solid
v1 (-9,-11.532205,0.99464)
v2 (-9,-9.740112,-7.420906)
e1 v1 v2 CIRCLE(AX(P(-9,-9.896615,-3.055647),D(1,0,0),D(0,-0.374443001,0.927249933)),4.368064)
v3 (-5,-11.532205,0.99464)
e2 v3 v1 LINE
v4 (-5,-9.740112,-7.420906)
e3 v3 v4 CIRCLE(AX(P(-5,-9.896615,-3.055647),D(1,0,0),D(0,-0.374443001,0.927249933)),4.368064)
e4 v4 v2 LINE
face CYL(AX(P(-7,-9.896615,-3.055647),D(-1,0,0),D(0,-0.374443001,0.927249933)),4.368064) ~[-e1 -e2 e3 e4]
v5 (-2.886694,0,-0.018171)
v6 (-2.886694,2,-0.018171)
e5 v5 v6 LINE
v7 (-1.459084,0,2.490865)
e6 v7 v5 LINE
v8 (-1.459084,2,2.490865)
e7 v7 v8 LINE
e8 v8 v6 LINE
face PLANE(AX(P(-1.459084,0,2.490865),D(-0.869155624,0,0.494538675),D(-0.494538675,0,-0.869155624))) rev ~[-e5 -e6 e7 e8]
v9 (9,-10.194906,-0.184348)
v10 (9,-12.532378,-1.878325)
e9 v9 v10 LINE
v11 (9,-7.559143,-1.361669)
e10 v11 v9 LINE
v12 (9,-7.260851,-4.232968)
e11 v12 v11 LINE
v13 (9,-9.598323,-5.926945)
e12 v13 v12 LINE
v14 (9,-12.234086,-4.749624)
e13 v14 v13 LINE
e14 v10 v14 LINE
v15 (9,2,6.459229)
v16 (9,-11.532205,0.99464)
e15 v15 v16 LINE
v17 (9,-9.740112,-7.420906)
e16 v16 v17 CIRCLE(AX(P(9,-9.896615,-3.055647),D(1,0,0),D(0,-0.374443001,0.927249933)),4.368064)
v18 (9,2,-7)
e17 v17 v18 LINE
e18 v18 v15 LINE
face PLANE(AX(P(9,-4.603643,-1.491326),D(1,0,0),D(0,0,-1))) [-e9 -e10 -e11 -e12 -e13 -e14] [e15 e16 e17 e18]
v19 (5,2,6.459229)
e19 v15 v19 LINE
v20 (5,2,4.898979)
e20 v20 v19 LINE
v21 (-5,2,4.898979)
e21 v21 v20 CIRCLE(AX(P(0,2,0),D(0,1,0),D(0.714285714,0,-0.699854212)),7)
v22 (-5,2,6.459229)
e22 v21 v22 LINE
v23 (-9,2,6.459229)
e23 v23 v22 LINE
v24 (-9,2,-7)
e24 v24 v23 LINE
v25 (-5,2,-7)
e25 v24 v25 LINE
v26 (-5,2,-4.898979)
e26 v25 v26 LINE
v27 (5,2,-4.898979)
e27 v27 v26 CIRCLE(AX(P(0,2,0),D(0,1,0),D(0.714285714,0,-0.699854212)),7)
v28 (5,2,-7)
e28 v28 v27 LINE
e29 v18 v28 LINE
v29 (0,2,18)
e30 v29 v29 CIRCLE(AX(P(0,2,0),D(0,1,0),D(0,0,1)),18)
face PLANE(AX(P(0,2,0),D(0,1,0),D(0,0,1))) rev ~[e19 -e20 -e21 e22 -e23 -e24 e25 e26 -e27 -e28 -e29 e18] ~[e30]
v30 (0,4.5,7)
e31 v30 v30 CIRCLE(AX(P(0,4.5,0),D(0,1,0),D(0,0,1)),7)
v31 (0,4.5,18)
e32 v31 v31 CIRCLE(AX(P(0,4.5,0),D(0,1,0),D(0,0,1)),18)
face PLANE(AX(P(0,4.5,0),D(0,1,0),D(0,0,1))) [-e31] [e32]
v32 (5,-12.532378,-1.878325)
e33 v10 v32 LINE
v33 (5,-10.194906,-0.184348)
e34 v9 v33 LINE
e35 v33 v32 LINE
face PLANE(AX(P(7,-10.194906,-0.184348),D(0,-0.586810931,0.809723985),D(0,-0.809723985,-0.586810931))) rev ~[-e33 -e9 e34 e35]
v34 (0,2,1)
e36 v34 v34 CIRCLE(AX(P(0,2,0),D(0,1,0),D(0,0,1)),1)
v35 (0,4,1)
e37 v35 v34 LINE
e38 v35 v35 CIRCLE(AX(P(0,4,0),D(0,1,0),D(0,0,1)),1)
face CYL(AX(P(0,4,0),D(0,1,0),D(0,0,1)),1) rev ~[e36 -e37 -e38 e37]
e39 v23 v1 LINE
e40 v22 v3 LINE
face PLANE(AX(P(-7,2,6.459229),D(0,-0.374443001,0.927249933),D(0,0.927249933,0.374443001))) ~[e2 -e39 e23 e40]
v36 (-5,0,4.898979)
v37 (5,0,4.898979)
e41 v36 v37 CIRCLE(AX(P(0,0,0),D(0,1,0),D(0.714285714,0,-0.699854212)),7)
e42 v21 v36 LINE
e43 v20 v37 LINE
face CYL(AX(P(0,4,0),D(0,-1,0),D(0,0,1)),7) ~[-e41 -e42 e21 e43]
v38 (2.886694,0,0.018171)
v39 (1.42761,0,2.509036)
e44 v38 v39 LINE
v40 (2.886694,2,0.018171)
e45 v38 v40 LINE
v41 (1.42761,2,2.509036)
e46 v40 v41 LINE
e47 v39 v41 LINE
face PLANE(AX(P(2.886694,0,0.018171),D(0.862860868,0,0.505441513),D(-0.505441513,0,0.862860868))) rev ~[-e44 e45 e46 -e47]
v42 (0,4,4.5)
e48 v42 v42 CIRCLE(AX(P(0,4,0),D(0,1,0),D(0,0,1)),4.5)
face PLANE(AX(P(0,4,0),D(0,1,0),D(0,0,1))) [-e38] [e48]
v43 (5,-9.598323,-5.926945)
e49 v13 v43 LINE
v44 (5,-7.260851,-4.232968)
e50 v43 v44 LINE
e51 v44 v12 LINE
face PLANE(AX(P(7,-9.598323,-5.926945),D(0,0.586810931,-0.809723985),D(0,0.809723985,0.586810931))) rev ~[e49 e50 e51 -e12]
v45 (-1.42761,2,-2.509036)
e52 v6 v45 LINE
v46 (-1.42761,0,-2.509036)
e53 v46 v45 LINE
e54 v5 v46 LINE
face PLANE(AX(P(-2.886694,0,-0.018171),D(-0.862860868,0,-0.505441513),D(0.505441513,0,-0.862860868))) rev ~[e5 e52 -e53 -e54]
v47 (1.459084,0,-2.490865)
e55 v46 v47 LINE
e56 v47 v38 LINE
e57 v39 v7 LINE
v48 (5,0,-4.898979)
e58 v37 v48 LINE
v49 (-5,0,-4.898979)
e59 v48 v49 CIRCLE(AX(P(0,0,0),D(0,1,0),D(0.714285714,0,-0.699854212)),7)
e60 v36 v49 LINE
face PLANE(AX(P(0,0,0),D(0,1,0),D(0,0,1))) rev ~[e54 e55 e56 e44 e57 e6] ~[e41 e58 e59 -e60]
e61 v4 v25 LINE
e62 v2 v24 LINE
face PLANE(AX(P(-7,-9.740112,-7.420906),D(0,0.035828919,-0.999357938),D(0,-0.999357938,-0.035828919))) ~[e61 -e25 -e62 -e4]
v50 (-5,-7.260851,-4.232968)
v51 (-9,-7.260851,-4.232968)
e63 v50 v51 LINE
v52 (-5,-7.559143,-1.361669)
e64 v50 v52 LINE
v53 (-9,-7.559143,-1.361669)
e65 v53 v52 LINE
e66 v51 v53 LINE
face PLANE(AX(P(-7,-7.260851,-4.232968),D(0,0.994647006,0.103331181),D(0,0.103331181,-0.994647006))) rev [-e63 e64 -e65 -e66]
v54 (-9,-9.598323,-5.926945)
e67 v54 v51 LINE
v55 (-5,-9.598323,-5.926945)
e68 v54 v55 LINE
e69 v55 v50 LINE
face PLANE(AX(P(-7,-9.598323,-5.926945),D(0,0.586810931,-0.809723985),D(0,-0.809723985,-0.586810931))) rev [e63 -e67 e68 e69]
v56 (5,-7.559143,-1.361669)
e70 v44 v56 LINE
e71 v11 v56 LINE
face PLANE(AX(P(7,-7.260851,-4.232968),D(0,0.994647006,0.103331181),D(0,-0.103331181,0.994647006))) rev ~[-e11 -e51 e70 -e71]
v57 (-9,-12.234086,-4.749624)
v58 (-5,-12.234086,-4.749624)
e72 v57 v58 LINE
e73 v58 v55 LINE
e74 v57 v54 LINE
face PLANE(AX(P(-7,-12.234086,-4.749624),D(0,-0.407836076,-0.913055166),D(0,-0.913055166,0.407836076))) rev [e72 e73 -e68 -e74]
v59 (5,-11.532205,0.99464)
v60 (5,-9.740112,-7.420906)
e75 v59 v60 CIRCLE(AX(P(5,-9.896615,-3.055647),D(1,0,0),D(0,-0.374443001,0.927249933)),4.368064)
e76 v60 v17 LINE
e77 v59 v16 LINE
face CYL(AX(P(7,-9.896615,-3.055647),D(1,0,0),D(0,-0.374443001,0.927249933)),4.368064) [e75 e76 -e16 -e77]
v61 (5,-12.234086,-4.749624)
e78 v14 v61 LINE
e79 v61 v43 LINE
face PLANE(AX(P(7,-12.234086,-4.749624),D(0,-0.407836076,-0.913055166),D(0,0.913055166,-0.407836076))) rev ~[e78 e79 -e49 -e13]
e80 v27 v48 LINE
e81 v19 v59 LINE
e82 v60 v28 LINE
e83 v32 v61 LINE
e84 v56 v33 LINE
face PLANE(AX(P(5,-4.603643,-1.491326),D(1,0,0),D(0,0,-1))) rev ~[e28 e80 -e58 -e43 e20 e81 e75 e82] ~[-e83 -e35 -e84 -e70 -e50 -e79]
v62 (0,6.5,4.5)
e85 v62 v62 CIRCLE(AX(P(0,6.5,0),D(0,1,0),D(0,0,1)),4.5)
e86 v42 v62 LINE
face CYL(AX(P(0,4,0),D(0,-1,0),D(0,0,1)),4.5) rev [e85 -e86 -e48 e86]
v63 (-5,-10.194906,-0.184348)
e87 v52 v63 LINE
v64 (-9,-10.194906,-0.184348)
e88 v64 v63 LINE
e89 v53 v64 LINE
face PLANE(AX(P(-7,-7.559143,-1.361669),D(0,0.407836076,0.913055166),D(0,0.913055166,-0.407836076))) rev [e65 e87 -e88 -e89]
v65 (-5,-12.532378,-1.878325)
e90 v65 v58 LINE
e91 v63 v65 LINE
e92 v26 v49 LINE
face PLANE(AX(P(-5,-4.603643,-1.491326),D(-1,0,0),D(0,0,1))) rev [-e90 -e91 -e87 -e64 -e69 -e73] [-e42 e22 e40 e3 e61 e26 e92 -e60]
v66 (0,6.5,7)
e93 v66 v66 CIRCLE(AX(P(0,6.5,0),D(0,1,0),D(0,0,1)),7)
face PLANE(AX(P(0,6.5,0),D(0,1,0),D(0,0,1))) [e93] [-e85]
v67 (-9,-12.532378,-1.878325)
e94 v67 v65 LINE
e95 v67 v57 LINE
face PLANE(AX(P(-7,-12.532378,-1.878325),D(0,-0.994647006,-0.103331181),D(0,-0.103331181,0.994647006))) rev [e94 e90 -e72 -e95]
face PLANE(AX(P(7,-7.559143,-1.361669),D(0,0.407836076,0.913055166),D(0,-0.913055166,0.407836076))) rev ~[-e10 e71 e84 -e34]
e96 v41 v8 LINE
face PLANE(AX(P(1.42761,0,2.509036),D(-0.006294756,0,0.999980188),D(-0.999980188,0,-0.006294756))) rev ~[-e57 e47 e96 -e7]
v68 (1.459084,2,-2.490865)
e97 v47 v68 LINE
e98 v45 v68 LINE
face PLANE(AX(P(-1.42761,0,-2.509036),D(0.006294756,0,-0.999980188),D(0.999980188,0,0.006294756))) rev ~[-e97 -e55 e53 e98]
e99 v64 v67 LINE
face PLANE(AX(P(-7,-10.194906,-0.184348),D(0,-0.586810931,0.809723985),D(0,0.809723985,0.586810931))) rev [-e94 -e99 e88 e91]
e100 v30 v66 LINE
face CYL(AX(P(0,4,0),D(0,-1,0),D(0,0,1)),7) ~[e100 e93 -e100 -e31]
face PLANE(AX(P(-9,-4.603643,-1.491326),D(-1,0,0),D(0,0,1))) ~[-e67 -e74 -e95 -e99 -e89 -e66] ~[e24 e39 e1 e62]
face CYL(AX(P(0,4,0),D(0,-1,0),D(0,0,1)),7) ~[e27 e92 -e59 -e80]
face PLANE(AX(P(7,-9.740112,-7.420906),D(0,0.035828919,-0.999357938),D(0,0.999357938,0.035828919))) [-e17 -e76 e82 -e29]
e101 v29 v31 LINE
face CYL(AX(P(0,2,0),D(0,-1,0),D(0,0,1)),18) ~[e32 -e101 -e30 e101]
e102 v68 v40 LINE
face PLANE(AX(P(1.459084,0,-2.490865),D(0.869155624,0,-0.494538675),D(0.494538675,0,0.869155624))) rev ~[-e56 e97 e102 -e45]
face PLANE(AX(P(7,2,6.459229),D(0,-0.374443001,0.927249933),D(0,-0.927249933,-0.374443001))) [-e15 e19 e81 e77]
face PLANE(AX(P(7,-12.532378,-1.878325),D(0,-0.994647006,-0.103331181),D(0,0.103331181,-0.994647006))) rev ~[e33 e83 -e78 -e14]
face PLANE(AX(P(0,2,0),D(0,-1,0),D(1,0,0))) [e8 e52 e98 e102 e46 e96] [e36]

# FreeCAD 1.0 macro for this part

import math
import FreeCAD as App
import Part
import Sketcher

V = App.Vector
Q = App.Units.Quantity

doc = App.newDocument("Part")
params = doc.addObject("Spreadsheet::Sheet", "Params")
for row, (alias, value) in enumerate([
    ("sketch1_diameter", "14 mm"),
    ("pad1_length", "4 mm"),
    ("sketch2_diameter", "14 mm"),
    ("sketch2_diameter2", "9 mm"),
    ("pad2_length", "2.5 mm"),
    ("sketch3_diameter", "2 mm"),
    ("pocket1_length", "2.5 mm"),
    ("pocket2_length", "2 mm"),
    ("sketch5_diameter", "36 mm"),
    ("sketch5_diameter2", "14 mm"),
    ("pad3_length", "2.5 mm"),
    ("pad4_length", "4 mm"),
], start=1):
    params.set(f"A{row}", alias)
    params.set(f"B{row}", "=" + value)
    params.setAlias(f"B{row}", alias)

body = doc.addObject("PartDesign::Body", "Body")

sketch1 = doc.addObject("Sketcher::SketchObject", "Sketch")
body.addObject(sketch1)
sketch1.AttachmentSupport = (doc.XZ_Plane, [""])
sketch1.MapMode = "FlatFace"
sketch1.addGeometry(Part.Circle(V(0, 0, 0), V(0, 0, 1), 7), False)
sketch1.addConstraint(Sketcher.Constraint("Coincident", 0, 3, -1, 1))
sketch1.addConstraint(Sketcher.Constraint("Diameter", 0, Q("14 mm")))
sketch1.setExpression("Constraints[1]", "Params.sketch1_diameter")
pad1 = doc.addObject("PartDesign::Pad", "Pad")
body.addObject(pad1)
pad1.Profile = sketch1
pad1.setExpression("Length", "Params.pad1_length")
pad1.Reversed = True

sketch2 = doc.addObject("Sketcher::SketchObject", "Sketch001")
body.addObject(sketch2)
sketch2.AttachmentSupport = (doc.XZ_Plane, [""])
sketch2.MapMode = "FlatFace"
sketch2.AttachmentOffset = App.Placement(V(0, 0, -4), App.Rotation())
sketch2.addGeometry(Part.Circle(V(0, 0, 0), V(0, 0, 1), 7), False)
sketch2.addGeometry(Part.Circle(V(0, 0, 0), V(0, 0, 1), 4.5), False)
sketch2.addConstraint(Sketcher.Constraint("Coincident", 0, 3, -1, 1))
sketch2.addConstraint(Sketcher.Constraint("Coincident", 1, 3, -1, 1))
sketch2.addConstraint(Sketcher.Constraint("Diameter", 0, Q("14 mm")))
sketch2.addConstraint(Sketcher.Constraint("Diameter", 1, Q("9 mm")))
sketch2.setExpression("Constraints[2]", "Params.sketch2_diameter")
sketch2.setExpression("Constraints[3]", "Params.sketch2_diameter2")
pad2 = doc.addObject("PartDesign::Pad", "Pad001")
body.addObject(pad2)
pad2.Profile = sketch2
pad2.setExpression("Length", "Params.pad2_length")
pad2.Reversed = True

sketch3 = doc.addObject("Sketcher::SketchObject", "Sketch002")
body.addObject(sketch3)
sketch3.AttachmentSupport = (doc.XZ_Plane, [""])
sketch3.MapMode = "FlatFace"
sketch3.AttachmentOffset = App.Placement(V(0, 0, -4), App.Rotation())
sketch3.addGeometry(Part.Circle(V(0, 0, 0), V(0, 0, 1), 1), False)
sketch3.addConstraint(Sketcher.Constraint("Coincident", 0, 3, -1, 1))
sketch3.addConstraint(Sketcher.Constraint("Diameter", 0, Q("2 mm")))
sketch3.setExpression("Constraints[1]", "Params.sketch3_diameter")
pocket1 = doc.addObject("PartDesign::Pocket", "Pocket")
body.addObject(pocket1)
pocket1.Profile = sketch3
pocket1.setExpression("Length", "Params.pocket1_length")
pocket1.Reversed = True

sketch4 = doc.addObject("Sketcher::SketchObject", "Sketch003")
body.addObject(sketch4)
sketch4.AttachmentSupport = (doc.XZ_Plane, [""])
sketch4.MapMode = "FlatFace"
sketch4.addGeometry(Part.LineSegment(V(1.5, -2.5, 0), V(2.9, 0, 0)), False)
sketch4.addGeometry(Part.LineSegment(V(2.9, 0, 0), V(1.4, 2.5, 0)), False)
sketch4.addGeometry(Part.LineSegment(V(1.4, 2.5, 0), V(-1.5, 2.5, 0)), False)
sketch4.addGeometry(Part.LineSegment(V(-1.5, 2.5, 0), V(-2.9, 0, 0)), False)
sketch4.addGeometry(Part.LineSegment(V(-2.9, 0, 0), V(-1.4, -2.5, 0)), False)
sketch4.addGeometry(Part.LineSegment(V(-1.4, -2.5, 0), V(1.5, -2.5, 0)), False)
sketch4.addConstraint(Sketcher.Constraint("Coincident", 0, 2, 1, 1))
sketch4.addConstraint(Sketcher.Constraint("Coincident", 1, 2, 2, 1))
sketch4.addConstraint(Sketcher.Constraint("Coincident", 2, 2, 3, 1))
sketch4.addConstraint(Sketcher.Constraint("Coincident", 3, 2, 4, 1))
sketch4.addConstraint(Sketcher.Constraint("Coincident", 4, 2, 5, 1))
sketch4.addConstraint(Sketcher.Constraint("Coincident", 5, 2, 0, 1))
sketch4.addConstraint(Sketcher.Constraint("Symmetric", 0, 2, 3, 2, -1, 1))
sketch4.addConstraint(Sketcher.Constraint("Symmetric", 1, 2, 4, 2, -1, 1))
sketch4.addConstraint(Sketcher.Constraint("Symmetric", 2, 2, 5, 2, -1, 1))
sketch4.addConstraint(Sketcher.Constraint("Equal", 0, 1))
sketch4.addConstraint(Sketcher.Constraint("Equal", 1, 2))
sketch4.addConstraint(Sketcher.Constraint("DistanceY", 4, 2, 2, 2, Q("4.999901 mm")))
sketch4.addConstraint(Sketcher.Constraint("Distance", 0, Q("2.886751 mm")))
sketch4.addConstraint(Sketcher.Constraint("DistanceY", -1, 1, 0, 2, Q("0.018171 mm")))
sketch4.addConstraint(Sketcher.Constraint("DistanceX", -1, 1, 1, 2, Q("1.42761 mm")))
pocket2 = doc.addObject("PartDesign::Pocket", "Pocket001")
body.addObject(pocket2)
pocket2.Profile = sketch4
pocket2.setExpression("Length", "Params.pocket2_length")

sketch5 = doc.addObject("Sketcher::SketchObject", "Sketch004")
body.addObject(sketch5)
sketch5.AttachmentSupport = (doc.XZ_Plane, [""])
sketch5.MapMode = "FlatFace"
sketch5.AttachmentOffset = App.Placement(V(0, 0, -2), App.Rotation())
sketch5.addGeometry(Part.Circle(V(0, 0, 0), V(0, 0, 1), 18), False)
sketch5.addGeometry(Part.Circle(V(0, 0, 0), V(0, 0, 1), 7), False)
sketch5.addConstraint(Sketcher.Constraint("Coincident", 0, 3, -1, 1))
sketch5.addConstraint(Sketcher.Constraint("Coincident", 1, 3, -1, 1))
sketch5.addConstraint(Sketcher.Constraint("Diameter", 0, Q("36 mm")))
sketch5.addConstraint(Sketcher.Constraint("Diameter", 1, Q("14 mm")))
sketch5.setExpression("Constraints[2]", "Params.sketch5_diameter")
sketch5.setExpression("Constraints[3]", "Params.sketch5_diameter2")
pad3 = doc.addObject("PartDesign::Pad", "Pad002")
body.addObject(pad3)
pad3.Profile = sketch5
pad3.setExpression("Length", "Params.pad3_length")
pad3.Reversed = True

sketch6 = doc.addObject("Sketcher::SketchObject", "Sketch005")
body.addObject(sketch6)
sketch6.AttachmentSupport = (doc.YZ_Plane, [""])
sketch6.MapMode = "FlatFace"
sketch6.AttachmentOffset = App.Placement(V(0, 0, 7), App.Rotation())
sketch6.addGeometry(Part.LineSegment(V(2, 6.459229, 0), V(-11.532205, 0.99464, 0)), False)
sketch6.addGeometry(Part.ArcOfCircle(Part.Circle(V(-9.896615, -3.055647, 0), V(0, 0, 1), 4.368064), math.radians(111.989891), math.radians(272.053285)), False)
sketch6.addGeometry(Part.LineSegment(V(-9.740112, -7.420906, 0), V(2, -7, 0)), False)
sketch6.addGeometry(Part.LineSegment(V(2, -7, 0), V(2, 6.459229, 0)), False)
sketch6.addGeometry(Part.LineSegment(V(-7.559143, -1.361669, 0), V(-7.260851, -4.232968, 0)), False)
sketch6.addGeometry(Part.LineSegment(V(-7.260851, -4.232968, 0), V(-9.598323, -5.926945, 0)), False)
sketch6.addGeometry(Part.LineSegment(V(-9.598323, -5.926945, 0), V(-12.234086, -4.749624, 0)), False)
sketch6.addGeometry(Part.LineSegment(V(-12.234086, -4.749624, 0), V(-12.532378, -1.878325, 0)), False)
sketch6.addGeometry(Part.LineSegment(V(-12.532378, -1.878325, 0), V(-10.194906, -0.184348, 0)), False)
sketch6.addGeometry(Part.LineSegment(V(-10.194906, -0.184348, 0), V(-7.559143, -1.361669, 0)), False)
sketch6.addConstraint(Sketcher.Constraint("Coincident", 0, 2, 1, 1))
sketch6.addConstraint(Sketcher.Constraint("Coincident", 1, 2, 2, 1))
sketch6.addConstraint(Sketcher.Constraint("Coincident", 2, 2, 3, 1))
sketch6.addConstraint(Sketcher.Constraint("Coincident", 3, 2, 0, 1))
sketch6.addConstraint(Sketcher.Constraint("Coincident", 4, 2, 5, 1))
sketch6.addConstraint(Sketcher.Constraint("Coincident", 5, 2, 6, 1))
sketch6.addConstraint(Sketcher.Constraint("Coincident", 6, 2, 7, 1))
sketch6.addConstraint(Sketcher.Constraint("Coincident", 7, 2, 8, 1))
sketch6.addConstraint(Sketcher.Constraint("Coincident", 8, 2, 9, 1))
sketch6.addConstraint(Sketcher.Constraint("Coincident", 9, 2, 4, 1))
sketch6.addConstraint(Sketcher.Constraint("Vertical", 3))
sketch6.addConstraint(Sketcher.Constraint("DistanceX", -1, 1, 2, 2, Q("2 mm")))
sketch6.addConstraint(Sketcher.Constraint("DistanceY", 2, 2, -1, 1, Q("7 mm")))
sketch6.addConstraint(Sketcher.Constraint("Radius", 1, Q("4.368064 mm")))
sketch6.addConstraint(Sketcher.Constraint("DistanceY", 3, 1, 3, 2, Q("13.459229 mm")))
sketch6.addConstraint(Sketcher.Constraint("DistanceY", 5, 2, 1, 3, Q("2.871299 mm")))
sketch6.addConstraint(Sketcher.Constraint("DistanceY", 6, 2, 7, 2, Q("2.871299 mm")))
sketch6.addConstraint(Sketcher.Constraint("DistanceX", 0, 2, 8, 2, Q("1.337299 mm")))
sketch6.addConstraint(Sketcher.Constraint("DistanceY", 1, 3, 8, 2, Q("2.871299 mm")))
sketch6.addConstraint(Sketcher.Constraint("DistanceY", 4, 2, 9, 2, Q("2.871299 mm")))
sketch6.addConstraint(Sketcher.Constraint("Distance", 4, Q("2.886751 mm")))
sketch6.addConstraint(Sketcher.Constraint("Distance", 5, Q("2.886751 mm")))
sketch6.addConstraint(Sketcher.Constraint("Distance", 6, Q("2.886751 mm")))
sketch6.addConstraint(Sketcher.Constraint("Distance", 7, Q("2.886751 mm")))
sketch6.addConstraint(Sketcher.Constraint("Distance", 8, Q("2.886751 mm")))
sketch6.addConstraint(Sketcher.Constraint("Distance", 9, Q("2.886751 mm")))
sketch6.addConstraint(Sketcher.Constraint("DistanceY", -1, 1, 0, 2, Q("0.99464 mm")))
sketch6.addConstraint(Sketcher.Constraint("DistanceX", 1, 2, -1, 1, Q("9.740112 mm")))
sketch6.addConstraint(Sketcher.Constraint("DistanceX", 4, 2, -1, 1, Q("7.260851 mm")))
sketch6.addConstraint(Sketcher.Constraint("DistanceY", 4, 2, -1, 1, Q("4.232968 mm")))
sketch6.addConstraint(Sketcher.Constraint("DistanceY", 8, 2, -1, 1, Q("0.184348 mm")))
pad4 = doc.addObject("PartDesign::Pad", "Pad003")
body.addObject(pad4)
pad4.Profile = sketch6
pad4.setExpression("Length", "Params.pad4_length")
pad4.Midplane = True
doc.recompute()

mirrored = doc.addObject("PartDesign::Mirrored", "Mirrored")
body.addObject(mirrored)
mirrored.Originals = [pad4]
mirrored.MirrorPlane = (doc.YZ_Plane, [""])
body.Tip = mirrored

doc.recompute()
